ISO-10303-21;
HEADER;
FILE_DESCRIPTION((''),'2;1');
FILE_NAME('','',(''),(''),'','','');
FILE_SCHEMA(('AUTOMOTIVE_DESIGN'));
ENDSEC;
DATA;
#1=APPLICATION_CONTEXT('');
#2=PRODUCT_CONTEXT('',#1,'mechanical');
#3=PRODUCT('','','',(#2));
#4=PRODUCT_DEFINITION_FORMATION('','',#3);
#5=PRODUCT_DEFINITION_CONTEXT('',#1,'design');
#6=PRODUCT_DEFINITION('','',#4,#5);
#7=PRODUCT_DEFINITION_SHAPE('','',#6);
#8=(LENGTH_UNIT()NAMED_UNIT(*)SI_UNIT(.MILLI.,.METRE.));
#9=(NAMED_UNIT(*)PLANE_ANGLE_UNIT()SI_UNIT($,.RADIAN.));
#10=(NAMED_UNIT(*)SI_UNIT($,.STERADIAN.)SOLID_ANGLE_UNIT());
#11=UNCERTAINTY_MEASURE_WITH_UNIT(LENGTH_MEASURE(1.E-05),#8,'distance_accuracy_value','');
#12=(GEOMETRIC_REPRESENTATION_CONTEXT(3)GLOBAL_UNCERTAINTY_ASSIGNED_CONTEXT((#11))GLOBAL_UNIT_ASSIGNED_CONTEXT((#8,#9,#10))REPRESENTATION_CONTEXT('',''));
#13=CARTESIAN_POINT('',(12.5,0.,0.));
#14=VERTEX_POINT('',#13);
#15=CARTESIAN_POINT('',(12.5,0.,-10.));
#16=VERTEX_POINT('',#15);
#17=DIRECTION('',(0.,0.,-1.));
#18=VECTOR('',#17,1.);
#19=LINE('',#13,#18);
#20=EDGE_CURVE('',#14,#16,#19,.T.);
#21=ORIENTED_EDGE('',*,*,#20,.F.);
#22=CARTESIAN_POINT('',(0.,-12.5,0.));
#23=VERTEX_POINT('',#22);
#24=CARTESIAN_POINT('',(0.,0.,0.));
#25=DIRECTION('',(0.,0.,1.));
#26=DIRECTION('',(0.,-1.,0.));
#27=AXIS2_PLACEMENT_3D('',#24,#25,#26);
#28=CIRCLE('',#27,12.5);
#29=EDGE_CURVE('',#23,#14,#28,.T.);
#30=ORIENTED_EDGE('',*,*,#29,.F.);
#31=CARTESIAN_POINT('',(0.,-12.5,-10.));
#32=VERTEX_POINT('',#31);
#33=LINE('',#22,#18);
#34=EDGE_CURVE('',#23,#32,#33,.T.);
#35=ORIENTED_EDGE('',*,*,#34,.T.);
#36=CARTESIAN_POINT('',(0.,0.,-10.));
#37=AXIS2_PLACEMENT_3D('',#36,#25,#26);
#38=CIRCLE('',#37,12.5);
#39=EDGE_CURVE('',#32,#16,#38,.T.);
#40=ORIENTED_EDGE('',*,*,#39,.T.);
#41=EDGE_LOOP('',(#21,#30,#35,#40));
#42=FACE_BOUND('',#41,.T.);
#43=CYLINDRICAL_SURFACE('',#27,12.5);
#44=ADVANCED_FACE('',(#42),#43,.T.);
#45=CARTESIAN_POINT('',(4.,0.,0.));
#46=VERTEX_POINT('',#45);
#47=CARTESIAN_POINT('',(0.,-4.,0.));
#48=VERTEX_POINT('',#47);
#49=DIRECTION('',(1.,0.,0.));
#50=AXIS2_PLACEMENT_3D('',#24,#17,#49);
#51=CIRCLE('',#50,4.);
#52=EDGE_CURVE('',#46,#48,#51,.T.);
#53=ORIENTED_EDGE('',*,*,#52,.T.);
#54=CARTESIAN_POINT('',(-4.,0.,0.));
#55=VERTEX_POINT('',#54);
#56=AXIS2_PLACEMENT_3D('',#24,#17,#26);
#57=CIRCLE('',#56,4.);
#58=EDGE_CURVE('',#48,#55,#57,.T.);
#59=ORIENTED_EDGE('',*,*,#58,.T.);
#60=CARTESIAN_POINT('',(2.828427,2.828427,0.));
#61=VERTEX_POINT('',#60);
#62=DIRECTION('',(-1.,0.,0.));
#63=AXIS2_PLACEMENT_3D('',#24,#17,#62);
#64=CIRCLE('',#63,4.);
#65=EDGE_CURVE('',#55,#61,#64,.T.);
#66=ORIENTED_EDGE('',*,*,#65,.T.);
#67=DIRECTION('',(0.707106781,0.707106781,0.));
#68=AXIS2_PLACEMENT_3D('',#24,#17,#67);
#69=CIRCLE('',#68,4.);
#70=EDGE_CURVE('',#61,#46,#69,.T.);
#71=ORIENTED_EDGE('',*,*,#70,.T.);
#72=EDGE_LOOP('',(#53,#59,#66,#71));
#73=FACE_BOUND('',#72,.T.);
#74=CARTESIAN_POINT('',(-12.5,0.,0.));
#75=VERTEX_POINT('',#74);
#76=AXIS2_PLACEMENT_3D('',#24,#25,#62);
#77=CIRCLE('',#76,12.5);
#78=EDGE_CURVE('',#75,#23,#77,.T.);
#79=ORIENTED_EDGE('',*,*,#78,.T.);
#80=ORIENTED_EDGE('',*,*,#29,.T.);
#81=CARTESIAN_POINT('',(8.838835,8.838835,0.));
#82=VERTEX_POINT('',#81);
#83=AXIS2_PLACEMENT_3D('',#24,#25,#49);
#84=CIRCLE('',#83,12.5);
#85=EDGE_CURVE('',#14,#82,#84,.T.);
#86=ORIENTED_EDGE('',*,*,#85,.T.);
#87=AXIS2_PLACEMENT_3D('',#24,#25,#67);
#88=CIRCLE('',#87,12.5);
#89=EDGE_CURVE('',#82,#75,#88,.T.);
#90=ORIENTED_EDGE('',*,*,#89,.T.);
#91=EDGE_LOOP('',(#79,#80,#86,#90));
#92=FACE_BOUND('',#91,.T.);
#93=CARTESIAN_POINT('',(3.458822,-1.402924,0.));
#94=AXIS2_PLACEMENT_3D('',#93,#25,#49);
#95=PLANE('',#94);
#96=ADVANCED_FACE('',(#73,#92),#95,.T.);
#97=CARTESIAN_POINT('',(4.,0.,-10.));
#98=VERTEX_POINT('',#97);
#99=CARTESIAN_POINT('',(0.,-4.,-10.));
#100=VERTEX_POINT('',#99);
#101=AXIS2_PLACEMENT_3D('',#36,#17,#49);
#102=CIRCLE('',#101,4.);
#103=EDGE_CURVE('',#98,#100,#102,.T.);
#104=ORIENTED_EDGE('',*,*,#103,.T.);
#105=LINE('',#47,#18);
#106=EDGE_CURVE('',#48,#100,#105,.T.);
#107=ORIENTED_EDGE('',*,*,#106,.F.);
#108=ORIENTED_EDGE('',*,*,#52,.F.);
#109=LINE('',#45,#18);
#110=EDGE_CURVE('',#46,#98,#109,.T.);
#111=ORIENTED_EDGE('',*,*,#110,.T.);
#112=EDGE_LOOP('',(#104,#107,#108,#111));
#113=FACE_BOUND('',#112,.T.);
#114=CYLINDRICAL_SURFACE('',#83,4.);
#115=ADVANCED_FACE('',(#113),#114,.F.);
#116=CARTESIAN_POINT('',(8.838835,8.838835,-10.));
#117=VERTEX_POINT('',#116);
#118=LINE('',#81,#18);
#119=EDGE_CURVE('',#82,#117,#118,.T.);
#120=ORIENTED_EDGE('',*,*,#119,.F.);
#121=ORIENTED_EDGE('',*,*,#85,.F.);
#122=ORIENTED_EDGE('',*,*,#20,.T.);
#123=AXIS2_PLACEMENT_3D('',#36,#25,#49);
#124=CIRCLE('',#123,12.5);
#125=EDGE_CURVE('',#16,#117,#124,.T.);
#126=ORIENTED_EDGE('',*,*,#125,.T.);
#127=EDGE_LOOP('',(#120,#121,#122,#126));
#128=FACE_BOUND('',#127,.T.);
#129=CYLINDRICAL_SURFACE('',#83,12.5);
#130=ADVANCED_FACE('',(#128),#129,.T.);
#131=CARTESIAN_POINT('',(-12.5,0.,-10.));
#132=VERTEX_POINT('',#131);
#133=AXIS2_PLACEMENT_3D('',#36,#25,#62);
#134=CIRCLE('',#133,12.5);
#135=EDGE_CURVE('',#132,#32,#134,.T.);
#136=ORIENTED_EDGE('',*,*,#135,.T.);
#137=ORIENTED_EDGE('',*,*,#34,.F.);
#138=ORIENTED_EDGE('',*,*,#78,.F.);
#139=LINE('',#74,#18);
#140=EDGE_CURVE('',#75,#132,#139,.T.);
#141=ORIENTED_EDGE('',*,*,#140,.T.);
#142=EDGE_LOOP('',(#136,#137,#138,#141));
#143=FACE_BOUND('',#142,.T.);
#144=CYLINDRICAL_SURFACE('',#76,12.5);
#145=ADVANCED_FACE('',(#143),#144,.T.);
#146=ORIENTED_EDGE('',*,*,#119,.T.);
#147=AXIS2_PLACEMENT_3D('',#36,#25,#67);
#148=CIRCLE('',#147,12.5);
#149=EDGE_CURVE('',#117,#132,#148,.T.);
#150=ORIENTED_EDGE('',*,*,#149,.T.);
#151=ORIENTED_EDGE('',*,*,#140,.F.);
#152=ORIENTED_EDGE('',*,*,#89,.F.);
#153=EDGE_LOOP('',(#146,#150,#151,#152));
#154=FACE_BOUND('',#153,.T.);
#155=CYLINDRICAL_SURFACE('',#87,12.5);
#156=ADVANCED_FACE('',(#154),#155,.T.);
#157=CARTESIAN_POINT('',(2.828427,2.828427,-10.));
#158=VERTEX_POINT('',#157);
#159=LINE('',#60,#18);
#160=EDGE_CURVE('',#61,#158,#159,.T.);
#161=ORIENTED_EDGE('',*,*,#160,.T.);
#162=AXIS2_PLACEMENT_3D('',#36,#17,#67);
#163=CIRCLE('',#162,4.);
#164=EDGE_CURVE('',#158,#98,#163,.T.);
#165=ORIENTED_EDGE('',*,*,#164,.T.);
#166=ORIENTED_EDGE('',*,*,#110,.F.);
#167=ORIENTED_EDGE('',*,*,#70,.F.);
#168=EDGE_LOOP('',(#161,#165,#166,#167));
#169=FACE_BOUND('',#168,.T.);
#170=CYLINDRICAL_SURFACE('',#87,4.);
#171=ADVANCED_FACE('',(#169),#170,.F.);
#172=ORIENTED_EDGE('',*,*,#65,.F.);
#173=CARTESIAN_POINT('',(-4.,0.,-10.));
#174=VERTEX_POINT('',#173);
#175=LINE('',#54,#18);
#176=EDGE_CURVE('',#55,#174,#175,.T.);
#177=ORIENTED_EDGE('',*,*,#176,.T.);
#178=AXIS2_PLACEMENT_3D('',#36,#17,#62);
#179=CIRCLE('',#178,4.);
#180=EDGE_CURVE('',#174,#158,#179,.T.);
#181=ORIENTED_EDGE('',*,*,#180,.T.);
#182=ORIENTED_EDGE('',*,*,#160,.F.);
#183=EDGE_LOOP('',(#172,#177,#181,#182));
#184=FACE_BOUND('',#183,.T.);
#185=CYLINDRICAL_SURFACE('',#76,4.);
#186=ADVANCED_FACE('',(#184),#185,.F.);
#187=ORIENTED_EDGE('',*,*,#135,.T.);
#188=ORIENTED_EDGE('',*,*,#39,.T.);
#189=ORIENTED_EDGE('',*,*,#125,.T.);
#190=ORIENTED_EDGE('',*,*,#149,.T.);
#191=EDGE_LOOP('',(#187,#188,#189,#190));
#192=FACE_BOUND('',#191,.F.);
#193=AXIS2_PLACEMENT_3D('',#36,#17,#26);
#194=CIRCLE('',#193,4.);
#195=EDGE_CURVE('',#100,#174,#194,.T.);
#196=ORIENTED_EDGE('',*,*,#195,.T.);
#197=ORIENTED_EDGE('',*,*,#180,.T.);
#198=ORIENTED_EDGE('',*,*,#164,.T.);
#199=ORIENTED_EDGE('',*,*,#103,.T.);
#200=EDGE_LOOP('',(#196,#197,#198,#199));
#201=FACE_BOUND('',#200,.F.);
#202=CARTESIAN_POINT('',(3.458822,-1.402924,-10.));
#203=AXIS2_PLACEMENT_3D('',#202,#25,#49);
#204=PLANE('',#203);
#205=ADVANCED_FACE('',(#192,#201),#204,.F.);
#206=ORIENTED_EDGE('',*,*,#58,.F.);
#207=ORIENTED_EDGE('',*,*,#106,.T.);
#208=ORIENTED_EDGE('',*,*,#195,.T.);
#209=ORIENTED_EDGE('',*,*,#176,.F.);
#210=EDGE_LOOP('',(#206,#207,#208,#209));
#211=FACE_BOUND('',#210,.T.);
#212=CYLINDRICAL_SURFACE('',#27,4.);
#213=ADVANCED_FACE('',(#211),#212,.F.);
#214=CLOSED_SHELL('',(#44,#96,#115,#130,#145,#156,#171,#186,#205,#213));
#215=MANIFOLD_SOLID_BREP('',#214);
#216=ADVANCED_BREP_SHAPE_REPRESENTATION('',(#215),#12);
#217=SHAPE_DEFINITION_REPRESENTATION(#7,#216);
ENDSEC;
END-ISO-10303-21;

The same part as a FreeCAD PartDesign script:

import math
import FreeCAD as App
import Part
import Sketcher

V = App.Vector

doc = App.newDocument("Part")
params = doc.addObject("Spreadsheet::Sheet", "Params")
for row, (alias, value) in enumerate([
    ("sketch1_radius", "4 mm"),
    ("sketch1_radius2", "12.5 mm"),
    ("pad1_length", "10 mm"),
], start=1):
    params.set(f"A{row}", alias)
    params.set(f"B{row}", "=" + value)
    params.setAlias(f"B{row}", alias)

body = doc.addObject("PartDesign::Body", "Body")

# Sketch on XY plane
sketch1 = doc.addObject("Sketcher::SketchObject", "Sketch")
body.addObject(sketch1)
sketch1.AttachmentSupport = (doc.XY_Plane, [""])
sketch1.MapMode = "FlatFace"
sketch1.addGeometry(Part.ArcOfCircle(Part.Circle(V(0, 0, 0), V(0, 0, 1), 12.5), math.radians(-90), math.radians(0)), False)
sketch1.addGeometry(Part.ArcOfCircle(Part.Circle(V(0, 0, 0), V(0, 0, 1), 12.5), math.radians(0), math.radians(45)), False)
sketch1.addGeometry(Part.ArcOfCircle(Part.Circle(V(0, 0, 0), V(0, 0, 1), 12.5), math.radians(45), math.radians(180)), False)
sketch1.addGeometry(Part.ArcOfCircle(Part.Circle(V(0, 0, 0), V(0, 0, 1), 12.5), math.radians(180), math.radians(270)), False)
sketch1.addGeometry(Part.ArcOfCircle(Part.Circle(V(0, 0, 0), V(0, 0, 1), 4), math.radians(45), math.radians(180)), False)
sketch1.addGeometry(Part.ArcOfCircle(Part.Circle(V(0, 0, 0), V(0, 0, 1), 4), math.radians(0), math.radians(45)), False)
sketch1.addGeometry(Part.ArcOfCircle(Part.Circle(V(0, 0, 0), V(0, 0, 1), 4), math.radians(-90), math.radians(0)), False)
sketch1.addGeometry(Part.ArcOfCircle(Part.Circle(V(0, 0, 0), V(0, 0, 1), 4), math.radians(180), math.radians(270)), False)
sketch1.addConstraint(Sketcher.Constraint("Tangent", 0, 2, 1, 1))
sketch1.addConstraint(Sketcher.Constraint("Tangent", 1, 2, 2, 1))
sketch1.addConstraint(Sketcher.Constraint("Tangent", 2, 2, 3, 1))
sketch1.addConstraint(Sketcher.Constraint("Tangent", 3, 2, 0, 1))
sketch1.addConstraint(Sketcher.Constraint("Tangent", 4, 1, 5, 2))
sketch1.addConstraint(Sketcher.Constraint("Tangent", 5, 1, 6, 2))
sketch1.addConstraint(Sketcher.Constraint("Tangent", 6, 1, 7, 2))
sketch1.addConstraint(Sketcher.Constraint("Tangent", 7, 1, 4, 2))
sketch1.addConstraint(Sketcher.Constraint("Coincident", 0, 3, -1, 1))
sketch1.addConstraint(Sketcher.Constraint("Coincident", 4, 3, -1, 1))
sketch1.addConstraint(Sketcher.Constraint("Equal", 0, 1))
sketch1.addConstraint(Sketcher.Constraint("Equal", 4, 5))
sketch1.addConstraint(Sketcher.Constraint("PointOnObject", 0, 2, -1))
sketch1.addConstraint(Sketcher.Constraint("PointOnObject", 2, 2, -1))
sketch1.addConstraint(Sketcher.Constraint("PointOnObject", 3, 2, -2))
sketch1.addConstraint(Sketcher.Constraint("PointOnObject", 5, 1, -1))
sketch1.addConstraint(Sketcher.Constraint("PointOnObject", 6, 1, -2))
sketch1.addConstraint(Sketcher.Constraint("PointOnObject", 7, 1, -1))
sketch1.addConstraint(Sketcher.Constraint("Radius", 4, 4.0))
sketch1.addConstraint(Sketcher.Constraint("Radius", 0, 12.5))
sketch1.addConstraint(Sketcher.Constraint("DistanceX", -1, 1, 1, 2, 8.838835))
sketch1.addConstraint(Sketcher.Constraint("DistanceX", -1, 1, 4, 1, 2.828427))
sketch1.setExpression("Constraints[18]", "Params.sketch1_radius")
sketch1.setExpression("Constraints[19]", "Params.sketch1_radius2")
pad1 = doc.addObject("PartDesign::Pad", "Pad")
body.addObject(pad1)
pad1.Profile = sketch1
pad1.setExpression("Length", "Params.pad1_length")
pad1.Reversed = True

doc.recompute()
